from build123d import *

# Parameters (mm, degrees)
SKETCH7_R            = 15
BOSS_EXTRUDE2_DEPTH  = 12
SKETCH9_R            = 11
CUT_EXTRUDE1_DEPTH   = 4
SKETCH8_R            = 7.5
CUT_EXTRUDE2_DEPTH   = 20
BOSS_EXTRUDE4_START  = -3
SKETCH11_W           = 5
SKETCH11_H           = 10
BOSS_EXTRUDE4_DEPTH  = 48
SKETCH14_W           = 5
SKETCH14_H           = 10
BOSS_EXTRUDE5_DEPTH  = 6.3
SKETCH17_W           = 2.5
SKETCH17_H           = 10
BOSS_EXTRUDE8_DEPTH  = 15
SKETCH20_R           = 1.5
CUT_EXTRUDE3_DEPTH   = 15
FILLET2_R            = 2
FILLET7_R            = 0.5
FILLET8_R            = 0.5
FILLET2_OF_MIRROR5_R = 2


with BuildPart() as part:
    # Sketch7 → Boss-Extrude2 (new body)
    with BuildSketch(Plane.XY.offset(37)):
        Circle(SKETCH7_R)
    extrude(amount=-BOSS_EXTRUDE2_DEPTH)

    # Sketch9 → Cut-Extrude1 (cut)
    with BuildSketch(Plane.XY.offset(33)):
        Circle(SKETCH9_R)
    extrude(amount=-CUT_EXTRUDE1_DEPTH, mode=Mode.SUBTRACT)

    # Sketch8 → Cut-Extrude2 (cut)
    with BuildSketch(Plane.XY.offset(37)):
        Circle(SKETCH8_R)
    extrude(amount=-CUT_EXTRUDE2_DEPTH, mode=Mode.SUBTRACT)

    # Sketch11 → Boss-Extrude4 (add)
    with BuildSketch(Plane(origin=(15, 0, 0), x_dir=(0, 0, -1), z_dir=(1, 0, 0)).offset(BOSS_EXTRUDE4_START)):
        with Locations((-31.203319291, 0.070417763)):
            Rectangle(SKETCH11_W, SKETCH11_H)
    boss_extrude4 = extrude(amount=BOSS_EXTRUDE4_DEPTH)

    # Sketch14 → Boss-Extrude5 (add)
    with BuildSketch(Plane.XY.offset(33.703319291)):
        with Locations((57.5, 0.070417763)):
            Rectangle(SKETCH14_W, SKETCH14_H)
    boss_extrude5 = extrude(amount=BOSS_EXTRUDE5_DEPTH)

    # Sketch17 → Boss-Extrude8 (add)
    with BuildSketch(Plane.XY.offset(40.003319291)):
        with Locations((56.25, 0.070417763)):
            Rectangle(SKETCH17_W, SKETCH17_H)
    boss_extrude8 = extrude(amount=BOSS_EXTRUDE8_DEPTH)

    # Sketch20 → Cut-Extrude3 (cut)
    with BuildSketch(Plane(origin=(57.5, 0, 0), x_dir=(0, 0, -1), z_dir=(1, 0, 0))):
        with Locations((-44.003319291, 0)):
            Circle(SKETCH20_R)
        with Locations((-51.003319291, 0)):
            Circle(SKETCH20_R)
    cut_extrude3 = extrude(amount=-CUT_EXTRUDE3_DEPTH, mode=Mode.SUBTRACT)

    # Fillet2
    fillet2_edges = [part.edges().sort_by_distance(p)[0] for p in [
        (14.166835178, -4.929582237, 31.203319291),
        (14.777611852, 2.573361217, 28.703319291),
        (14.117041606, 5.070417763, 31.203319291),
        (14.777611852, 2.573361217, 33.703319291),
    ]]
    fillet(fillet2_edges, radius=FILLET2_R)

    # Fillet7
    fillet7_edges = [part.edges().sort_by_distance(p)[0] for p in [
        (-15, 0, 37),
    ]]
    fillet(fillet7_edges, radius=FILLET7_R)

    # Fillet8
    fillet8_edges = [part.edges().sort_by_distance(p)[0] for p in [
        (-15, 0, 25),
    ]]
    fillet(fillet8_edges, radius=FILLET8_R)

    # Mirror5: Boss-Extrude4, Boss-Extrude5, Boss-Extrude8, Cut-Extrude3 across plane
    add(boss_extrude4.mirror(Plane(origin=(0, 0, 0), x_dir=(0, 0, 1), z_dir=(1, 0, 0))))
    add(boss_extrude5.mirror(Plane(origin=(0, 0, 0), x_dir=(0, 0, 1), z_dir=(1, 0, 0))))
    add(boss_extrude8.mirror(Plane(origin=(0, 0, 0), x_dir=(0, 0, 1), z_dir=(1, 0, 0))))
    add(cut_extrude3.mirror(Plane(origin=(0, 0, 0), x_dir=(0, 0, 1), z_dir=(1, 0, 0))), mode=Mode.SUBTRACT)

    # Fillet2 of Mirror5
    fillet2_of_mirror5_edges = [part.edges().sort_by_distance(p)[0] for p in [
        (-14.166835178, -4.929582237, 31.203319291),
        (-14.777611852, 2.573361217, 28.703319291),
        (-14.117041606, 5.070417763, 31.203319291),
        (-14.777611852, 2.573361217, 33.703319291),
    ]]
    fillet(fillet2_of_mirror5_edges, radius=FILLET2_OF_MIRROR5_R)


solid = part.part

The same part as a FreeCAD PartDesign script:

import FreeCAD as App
import Part
import Sketcher
Q = App.Units.Quantity


def edges_at(feature, points):
    """Names of the edges that pass closest to the given points."""
    edges = feature.Shape.Edges
    near = lambda p: min(range(len(edges)), key=lambda i: edges[i].distToShape(Part.Vertex(*p))[0])
    return sorted({f"Edge{near(p) + 1}" for p in points})


def add_polygon(sketch, points):
    """Adds a closed chain of lines whose ends are joined by coincident constraints."""
    first, n = sketch.GeometryCount, len(points)
    for a, b in zip(points, points[1:] + points[:1]):
        sketch.addGeometry(Part.LineSegment(App.Vector(*a, 0), App.Vector(*b, 0)), False)
    for i in range(n):
        sketch.addConstraint(Sketcher.Constraint("Coincident", first + i, 2, first + (i + 1) % n, 1))

doc = App.newDocument("Part")
body = doc.addObject("PartDesign::Body", "Body")

sketch1 = body.newObject("Sketcher::SketchObject", "Sketch")
sketch1.AttachmentSupport = (doc.getObject("XY_Plane"), [""])
sketch1.MapMode = "FlatFace"
sketch1.AttachmentOffset = App.Placement(App.Vector(0, 0, 37), App.Rotation())
sketch1.addGeometry(Part.Circle(App.Vector(0, 0, 0), App.Vector(0, 0, 1), 15), False)
sketch1.addConstraint(Sketcher.Constraint("Coincident", 0, 3, -1, 1))
sketch1.addConstraint(Sketcher.Constraint("Diameter", 0, Q("30 mm")))
pad1 = body.newObject("PartDesign::Pad", "Pad")
pad1.Profile = sketch1
pad1.Length = 12
pad1.Reversed = True

sketch2 = body.newObject("Sketcher::SketchObject", "Sketch001")
sketch2.AttachmentSupport = (doc.getObject("XY_Plane"), [""])
sketch2.MapMode = "FlatFace"
sketch2.AttachmentOffset = App.Placement(App.Vector(0, 0, 33), App.Rotation())
sketch2.addGeometry(Part.Circle(App.Vector(0, 0, 0), App.Vector(0, 0, 1), 11), False)
sketch2.addConstraint(Sketcher.Constraint("Coincident", 0, 3, -1, 1))
sketch2.addConstraint(Sketcher.Constraint("Diameter", 0, Q("22 mm")))
pocket1 = body.newObject("PartDesign::Pocket", "Pocket")
pocket1.Profile = sketch2
pocket1.Length = 4

sketch3 = body.newObject("Sketcher::SketchObject", "Sketch002")
sketch3.AttachmentSupport = (doc.getObject("XY_Plane"), [""])
sketch3.MapMode = "FlatFace"
sketch3.AttachmentOffset = App.Placement(App.Vector(0, 0, 37), App.Rotation())
sketch3.addGeometry(Part.Circle(App.Vector(0, 0, 0), App.Vector(0, 0, 1), 8), False)
sketch3.addConstraint(Sketcher.Constraint("Coincident", 0, 3, -1, 1))
sketch3.addConstraint(Sketcher.Constraint("Diameter", 0, Q("15 mm")))
pocket2 = body.newObject("PartDesign::Pocket", "Pocket001")
pocket2.Profile = sketch3
pocket2.Length = 20

sketch4 = body.newObject("Sketcher::SketchObject", "Sketch003")
sketch4.AttachmentSupport = (doc.getObject("YZ_Plane"), [""])
sketch4.MapMode = "FlatFace"
sketch4.AttachmentOffset = App.Placement(App.Vector(0, 0, 12), App.Rotation())
add_polygon(sketch4, [(5, 34), (-5, 34), (-5, 29), (5, 29)])
sketch4.addConstraint(Sketcher.Constraint("Horizontal", 0))
sketch4.addConstraint(Sketcher.Constraint("Vertical", 1))
sketch4.addConstraint(Sketcher.Constraint("Horizontal", 2))
sketch4.addConstraint(Sketcher.Constraint("Vertical", 3))
sketch4.addConstraint(Sketcher.Constraint("DistanceX", 0, 2, 0, 1, Q("10 mm")))
sketch4.addConstraint(Sketcher.Constraint("DistanceY", 1, 2, 1, 1, Q("5 mm")))
sketch4.addConstraint(Sketcher.Constraint("DistanceY", -1, 1, 0, 2, Q("33.703319 mm")))
sketch4.addConstraint(Sketcher.Constraint("DistanceX", 0, 2, -1, 1, Q("4.929582 mm")))
pad2 = body.newObject("PartDesign::Pad", "Pad001")
pad2.Profile = sketch4
pad2.Length = 48

sketch5 = body.newObject("Sketcher::SketchObject", "Sketch004")
sketch5.AttachmentSupport = (doc.getObject("XY_Plane"), [""])
sketch5.MapMode = "FlatFace"
sketch5.AttachmentOffset = App.Placement(App.Vector(0, 0, 33.703319), App.Rotation())
add_polygon(sketch5, [(55, 5), (55, -5), (60, -5), (60, 5)])
sketch5.addConstraint(Sketcher.Constraint("Vertical", 0))
sketch5.addConstraint(Sketcher.Constraint("Horizontal", 1))
sketch5.addConstraint(Sketcher.Constraint("Vertical", 2))
sketch5.addConstraint(Sketcher.Constraint("Horizontal", 3))
sketch5.addConstraint(Sketcher.Constraint("DistanceX", 1, 1, 1, 2, Q("5 mm")))
sketch5.addConstraint(Sketcher.Constraint("DistanceY", 0, 2, 0, 1, Q("10 mm")))
sketch5.addConstraint(Sketcher.Constraint("DistanceX", -1, 1, 0, 2, Q("55 mm")))
sketch5.addConstraint(Sketcher.Constraint("DistanceY", 0, 2, -1, 1, Q("4.929582 mm")))
pad3 = body.newObject("PartDesign::Pad", "Pad002")
pad3.Profile = sketch5
pad3.Length = 6.3

sketch6 = body.newObject("Sketcher::SketchObject", "Sketch005")
sketch6.AttachmentSupport = (doc.getObject("XY_Plane"), [""])
sketch6.MapMode = "FlatFace"
sketch6.AttachmentOffset = App.Placement(App.Vector(0, 0, 40.003319), App.Rotation())
add_polygon(sketch6, [(55, 5.1), (55, -4.9), (57.5, -4.9), (57.5, 5.1)])
sketch6.addConstraint(Sketcher.Constraint("Vertical", 0))
sketch6.addConstraint(Sketcher.Constraint("Horizontal", 1))
sketch6.addConstraint(Sketcher.Constraint("Vertical", 2))
sketch6.addConstraint(Sketcher.Constraint("Horizontal", 3))
sketch6.addConstraint(Sketcher.Constraint("DistanceY", 0, 2, 0, 1, Q("10 mm")))
sketch6.addConstraint(Sketcher.Constraint("DistanceX", 1, 1, 1, 2, Q("2.5 mm")))
sketch6.addConstraint(Sketcher.Constraint("DistanceX", -1, 1, 0, 2, Q("55 mm")))
sketch6.addConstraint(Sketcher.Constraint("DistanceY", 0, 2, -1, 1, Q("4.929582 mm")))
pad4 = body.newObject("PartDesign::Pad", "Pad003")
pad4.Profile = sketch6
pad4.Length = 15

sketch7 = body.newObject("Sketcher::SketchObject", "Sketch006")
sketch7.AttachmentSupport = (doc.getObject("YZ_Plane"), [""])
sketch7.MapMode = "FlatFace"
sketch7.AttachmentOffset = App.Placement(App.Vector(0, 0, 57.5), App.Rotation())
sketch7.addGeometry(Part.Circle(App.Vector(0, 44, 0), App.Vector(0, 0, 1), 1.5), False)
sketch7.addGeometry(Part.Circle(App.Vector(0, 51, 0), App.Vector(0, 0, 1), 1.5), False)
sketch7.addConstraint(Sketcher.Constraint("Equal", 0, 1))
sketch7.addConstraint(Sketcher.Constraint("PointOnObject", 0, 3, -2))
sketch7.addConstraint(Sketcher.Constraint("PointOnObject", 1, 3, -2))
sketch7.addConstraint(Sketcher.Constraint("Diameter", 0, Q("3 mm")))
sketch7.addConstraint(Sketcher.Constraint("DistanceY", 0, 3, 1, 3, Q("7 mm")))
sketch7.addConstraint(Sketcher.Constraint("DistanceY", -1, 1, 0, 3, Q("44.003319 mm")))
pocket3 = body.newObject("PartDesign::Pocket", "Pocket002")
pocket3.Profile = sketch7
pocket3.Length = 15
doc.recompute()

fillet = body.newObject("PartDesign::Fillet", "Fillet")
fillet.Base = (pocket3, edges_at(pocket3, [
    (14.167, -4.93, 31.203),
    (14.778, 2.573, 28.703),
    (14.117, 5.07, 31.203),
    (14.778, 2.573, 33.703),
]))
fillet.Radius = 2
doc.recompute()

fillet2 = body.newObject("PartDesign::Fillet", "Fillet001")
fillet2.Base = (fillet, edges_at(fillet, [(-15, 0, 37)]))
fillet2.Radius = 0.5
doc.recompute()

fillet3 = body.newObject("PartDesign::Fillet", "Fillet002")
fillet3.Base = (fillet2, edges_at(fillet2, [(-15, 0, 25)]))
fillet3.Radius = 0.5
doc.recompute()

mirrored = body.newObject("PartDesign::Mirrored", "Mirrored")
mirrored.Originals = [pad2, pad3, pad4, pocket3]
mirrored.MirrorPlane = (doc.getObject("YZ_Plane"), [""])
body.Tip = mirrored
doc.recompute()

fillet4 = body.newObject("PartDesign::Fillet", "Fillet003")
fillet4.Base = (mirrored, edges_at(mirrored, [
    (-14.167, -4.93, 31.203),
    (-15, 0.075, 28.703),
    (-14.117, 5.07, 31.203),
    (-15, 0.075, 33.703),
]))
fillet4.Radius = 2

doc.recompute()
